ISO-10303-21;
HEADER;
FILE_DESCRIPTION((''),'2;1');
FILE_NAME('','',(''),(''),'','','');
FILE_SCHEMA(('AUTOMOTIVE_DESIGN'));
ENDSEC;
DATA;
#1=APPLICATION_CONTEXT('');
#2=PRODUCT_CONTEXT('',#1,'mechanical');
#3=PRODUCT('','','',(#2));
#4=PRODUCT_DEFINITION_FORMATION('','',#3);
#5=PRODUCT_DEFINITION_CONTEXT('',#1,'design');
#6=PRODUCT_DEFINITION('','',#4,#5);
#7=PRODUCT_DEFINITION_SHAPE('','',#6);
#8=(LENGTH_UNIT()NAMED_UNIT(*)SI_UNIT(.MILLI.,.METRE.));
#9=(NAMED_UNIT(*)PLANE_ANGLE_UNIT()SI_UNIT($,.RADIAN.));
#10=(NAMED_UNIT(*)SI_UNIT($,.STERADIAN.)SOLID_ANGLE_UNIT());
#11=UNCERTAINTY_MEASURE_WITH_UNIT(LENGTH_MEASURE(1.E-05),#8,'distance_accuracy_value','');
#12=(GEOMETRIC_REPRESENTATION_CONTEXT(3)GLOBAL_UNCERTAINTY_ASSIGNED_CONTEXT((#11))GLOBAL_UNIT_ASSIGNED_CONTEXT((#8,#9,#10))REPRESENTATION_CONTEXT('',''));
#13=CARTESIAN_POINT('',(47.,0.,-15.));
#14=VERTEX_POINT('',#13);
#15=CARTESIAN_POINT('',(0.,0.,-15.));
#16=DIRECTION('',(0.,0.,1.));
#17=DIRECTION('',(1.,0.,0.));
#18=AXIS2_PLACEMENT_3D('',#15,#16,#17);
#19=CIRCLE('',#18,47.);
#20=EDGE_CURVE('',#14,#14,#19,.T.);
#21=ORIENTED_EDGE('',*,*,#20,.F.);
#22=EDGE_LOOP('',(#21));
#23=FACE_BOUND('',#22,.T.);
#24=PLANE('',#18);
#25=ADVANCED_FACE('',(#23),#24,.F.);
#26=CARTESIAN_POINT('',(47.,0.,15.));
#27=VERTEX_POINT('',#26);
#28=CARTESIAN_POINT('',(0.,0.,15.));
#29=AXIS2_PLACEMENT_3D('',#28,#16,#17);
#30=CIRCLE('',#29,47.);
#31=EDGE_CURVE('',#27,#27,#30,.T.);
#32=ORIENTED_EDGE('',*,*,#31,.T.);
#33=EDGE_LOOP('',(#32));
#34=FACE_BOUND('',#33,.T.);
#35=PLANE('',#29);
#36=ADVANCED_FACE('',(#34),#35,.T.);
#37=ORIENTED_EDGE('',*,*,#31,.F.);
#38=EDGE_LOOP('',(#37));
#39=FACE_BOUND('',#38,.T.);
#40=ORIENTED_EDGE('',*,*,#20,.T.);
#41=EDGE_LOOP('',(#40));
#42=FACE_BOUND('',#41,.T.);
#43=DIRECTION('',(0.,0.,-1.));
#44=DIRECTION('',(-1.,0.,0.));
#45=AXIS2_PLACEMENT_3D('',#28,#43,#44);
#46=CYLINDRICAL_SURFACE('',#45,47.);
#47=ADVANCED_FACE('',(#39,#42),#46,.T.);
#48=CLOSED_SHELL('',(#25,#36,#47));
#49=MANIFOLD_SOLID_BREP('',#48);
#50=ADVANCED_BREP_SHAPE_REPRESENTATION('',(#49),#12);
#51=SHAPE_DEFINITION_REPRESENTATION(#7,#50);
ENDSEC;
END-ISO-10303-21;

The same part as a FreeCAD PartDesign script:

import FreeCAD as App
import Part
import Sketcher
from FreeCAD import Vector

doc = App.newDocument("Part")
params = doc.addObject("Spreadsheet::Sheet", "Params")
for row, (alias, value) in enumerate([
    ("sketch1_diameter", "94 mm"),
    ("pad1_length", "30 mm"),
], start=1):
    params.set(f"A{row}", alias)
    params.set(f"B{row}", "=" + value)
    params.setAlias(f"B{row}", alias)

body = doc.addObject("PartDesign::Body", "Body")

# Sketch on XY plane
sketch1 = body.newObject("Sketcher::SketchObject", "Sketch")
sketch1.AttachmentSupport = (doc.getObject("XY_Plane"), [""])
sketch1.MapMode = "FlatFace"
sketch1.addGeometry(Part.Circle(Vector(0, 0, 0), Vector(0, 0, 1), 47), False)
sketch1.addConstraint([
    Sketcher.Constraint("Coincident", 0, 3, -1, 1),
    Sketcher.Constraint("Diameter", 0, 94.0),
])
sketch1.setExpression("Constraints[1]", "Params.sketch1_diameter")
pad1 = body.newObject("PartDesign::Pad", "Pad")
pad1.Profile = sketch1
pad1.setExpression("Length", "Params.pad1_length")
pad1.Midplane = True

doc.recompute()
